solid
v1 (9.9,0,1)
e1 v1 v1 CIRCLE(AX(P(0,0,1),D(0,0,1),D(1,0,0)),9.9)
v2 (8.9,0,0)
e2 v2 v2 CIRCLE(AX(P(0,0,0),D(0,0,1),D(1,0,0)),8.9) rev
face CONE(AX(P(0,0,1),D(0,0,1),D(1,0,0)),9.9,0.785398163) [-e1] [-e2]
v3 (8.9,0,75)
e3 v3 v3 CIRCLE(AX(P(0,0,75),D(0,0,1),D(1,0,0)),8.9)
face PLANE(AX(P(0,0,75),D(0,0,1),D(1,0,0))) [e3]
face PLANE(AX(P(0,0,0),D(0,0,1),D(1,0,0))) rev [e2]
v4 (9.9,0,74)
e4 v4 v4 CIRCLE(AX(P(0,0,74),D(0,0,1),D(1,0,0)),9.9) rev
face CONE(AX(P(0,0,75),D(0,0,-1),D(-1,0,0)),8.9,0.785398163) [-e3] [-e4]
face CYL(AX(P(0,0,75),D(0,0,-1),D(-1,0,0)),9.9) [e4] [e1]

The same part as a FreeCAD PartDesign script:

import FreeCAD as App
import Part
import Sketcher
from FreeCAD import Vector
Q = App.Units.Quantity


def edges_at(feature, points):
    """Names of the edges that pass closest to the given points."""
    edges = feature.Shape.Edges
    near = lambda p: min(range(len(edges)), key=lambda i: edges[i].distToShape(Part.Vertex(*p))[0])
    return sorted({f"Edge{near(p) + 1}" for p in points})

doc = App.newDocument("Part")
body = doc.addObject("PartDesign::Body", "Body")

sketch1 = body.newObject("Sketcher::SketchObject", "Sketch")
sketch1.AttachmentSupport = (doc.getObject("XY_Plane"), [""])
sketch1.MapMode = "FlatFace"
sketch1.addGeometry(Part.Circle(Vector(0, 0, 0), Vector(0, 0, 1), 10), False)
sketch1.addConstraint([
    Sketcher.Constraint("Coincident", 0, 3, -1, 1),
    Sketcher.Constraint("Diameter", 0, Q("19.8 mm")),
])
pad1 = body.newObject("PartDesign::Pad", "Pad")
pad1.Profile = sketch1
pad1.Length = 75
doc.recompute()

chamfer = body.newObject("PartDesign::Chamfer", "Chamfer")
chamfer.Base = (pad1, edges_at(pad1, [(-9.9, 0, 0)]))
chamfer.Size = 1
doc.recompute()

chamfer2 = body.newObject("PartDesign::Chamfer", "Chamfer001")
chamfer2.Base = (chamfer, edges_at(chamfer, [(-9.9, 0, 75)]))
chamfer2.Size = 1

doc.recompute()
